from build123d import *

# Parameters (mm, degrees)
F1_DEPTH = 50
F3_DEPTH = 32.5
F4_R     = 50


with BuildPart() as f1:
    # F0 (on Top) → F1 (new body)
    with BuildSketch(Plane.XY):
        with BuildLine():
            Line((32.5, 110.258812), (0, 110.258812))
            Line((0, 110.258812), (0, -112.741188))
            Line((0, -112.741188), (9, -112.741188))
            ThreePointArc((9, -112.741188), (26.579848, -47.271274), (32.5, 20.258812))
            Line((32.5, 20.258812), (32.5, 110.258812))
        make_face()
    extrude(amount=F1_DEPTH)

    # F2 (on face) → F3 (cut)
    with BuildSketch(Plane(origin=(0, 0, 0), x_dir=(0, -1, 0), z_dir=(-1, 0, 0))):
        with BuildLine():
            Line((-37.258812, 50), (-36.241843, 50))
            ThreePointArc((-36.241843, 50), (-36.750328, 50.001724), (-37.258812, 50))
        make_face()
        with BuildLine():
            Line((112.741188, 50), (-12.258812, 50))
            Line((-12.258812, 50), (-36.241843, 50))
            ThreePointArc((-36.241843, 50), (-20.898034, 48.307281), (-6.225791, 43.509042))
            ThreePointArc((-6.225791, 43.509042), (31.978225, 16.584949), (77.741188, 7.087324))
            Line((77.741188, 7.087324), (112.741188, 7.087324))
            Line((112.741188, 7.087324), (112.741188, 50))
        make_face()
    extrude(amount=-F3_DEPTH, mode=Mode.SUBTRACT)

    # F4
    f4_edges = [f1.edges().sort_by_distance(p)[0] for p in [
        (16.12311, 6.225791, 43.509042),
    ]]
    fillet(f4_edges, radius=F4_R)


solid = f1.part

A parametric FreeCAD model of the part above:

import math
import FreeCAD as App
import Part
import Sketcher

V = App.Vector
Q = App.Units.Quantity


def edges_at(feature, points):
    """Names of the edges that pass closest to the given points."""
    edges = feature.Shape.Edges
    near = lambda p: min(range(len(edges)), key=lambda i: edges[i].distToShape(Part.Vertex(*p))[0])
    return sorted({f"Edge{near(p) + 1}" for p in points})

doc = App.newDocument("Part")
params = doc.addObject("Spreadsheet::Sheet", "Params")
for row, (alias, value) in enumerate([
    ("sketch1_width", "9 mm"),
    ("sketch1_height", "223 mm"),
    ("sketch1_height2", "90 mm"),
    ("sketch1_width2", "32.5 mm"),
    ("pad1_length", "50 mm"),
    ("sketch2_width", "35 mm"),
    ("pocket1_length", "32.5 mm"),
    ("fillet_radius", "50 mm"),
], start=1):
    params.set(f"A{row}", alias)
    params.set(f"B{row}", "=" + value)
    params.setAlias(f"B{row}", alias)

body = doc.addObject("PartDesign::Body", "Body")

sketch1 = body.newObject("Sketcher::SketchObject", "Sketch")
sketch1.AttachmentSupport = (doc.getObject("XY_Plane"), [""])
sketch1.MapMode = "FlatFace"
sketch1.addGeometry([
    Part.LineSegment(V(32, 110, 0), V(0, 110, 0)),
    Part.LineSegment(V(0, 110, 0), V(0, -113, 0)),
    Part.LineSegment(V(0, -113, 0), V(9, -113, 0)),
    Part.ArcOfCircle(Part.Circle(V(-356, 20, 0), V(0, 0, 1), 388), math.radians(-20), math.radians(0)),
    Part.LineSegment(V(32, 20, 0), V(32, 110, 0)),
], False)
sketch1.addConstraint([
    Sketcher.Constraint("Coincident", 0, 2, 1, 1),
    Sketcher.Constraint("Coincident", 1, 2, 2, 1),
    Sketcher.Constraint("Coincident", 2, 2, 3, 1),
    Sketcher.Constraint("Tangent", 3, 2, 4, 1),
    Sketcher.Constraint("Coincident", 4, 2, 0, 1),
    Sketcher.Constraint("Horizontal", 0),
    Sketcher.Constraint("Vertical", 1),
    Sketcher.Constraint("Horizontal", 2),
    Sketcher.Constraint("Vertical", 4),
    Sketcher.Constraint("PointOnObject", 0, 2, -2),
    Sketcher.Constraint("DistanceX", 2, 1, 2, 2, Q("9 mm")),
    Sketcher.Constraint("DistanceY", 1, 2, 1, 1, Q("223 mm")),
    Sketcher.Constraint("DistanceY", 4, 1, 4, 2, Q("90 mm")),
    Sketcher.Constraint("DistanceX", 0, 2, 0, 1, Q("32.5 mm")),
    Sketcher.Constraint("DistanceY", -1, 1, 3, 3, Q("20.258809 mm")),
])
sketch1.setExpression("Constraints[10]", "Params.sketch1_width")
sketch1.setExpression("Constraints[11]", "Params.sketch1_height")
sketch1.setExpression("Constraints[12]", "Params.sketch1_height2")
sketch1.setExpression("Constraints[13]", "Params.sketch1_width2")
pad1 = body.newObject("PartDesign::Pad", "Pad")
pad1.Profile = sketch1
pad1.setExpression("Length", "Params.pad1_length")

sketch2 = body.newObject("Sketcher::SketchObject", "Sketch001")
sketch2.AttachmentSupport = (doc.getObject("YZ_Plane"), [""])
sketch2.MapMode = "FlatFace"
sketch2.addGeometry([
    Part.LineSegment(V(37.3, 50, 0), V(36.2, 50, 0)),
    Part.ArcOfCircle(Part.Circle(V(36.8, -25, 0), V(0, 0, 1), 75), math.radians(89.61), math.radians(90.39)),
    Part.LineSegment(V(-112.7, 50, 0), V(36.2, 50, 0)),
    Part.ArcOfCircle(Part.Circle(V(36.8, -25, 0), V(0, 0, 1), 75), math.radians(90), math.radians(114)),
    Part.ArcOfCircle(Part.Circle(V(-77.7, 122.1, 0), V(0, 0, 1), 115), math.radians(-90), math.radians(-43)),
    Part.LineSegment(V(-77.7, 7.1, 0), V(-112.7, 7.1, 0)),
    Part.LineSegment(V(-112.7, 7.1, 0), V(-112.7, 50, 0)),
], False)
sketch2.addConstraint([
    Sketcher.Constraint("Coincident", 0, 1, 1, 1),
    Sketcher.Constraint("Coincident", 1, 2, 0, 2),
    Sketcher.Constraint("Coincident", 2, 2, 3, 1),
    Sketcher.Constraint("Coincident", 3, 2, 4, 2),
    Sketcher.Constraint("Tangent", 4, 1, 5, 1),
    Sketcher.Constraint("Coincident", 5, 2, 6, 1),
    Sketcher.Constraint("Coincident", 6, 2, 2, 1),
    Sketcher.Constraint("Horizontal", 0),
    Sketcher.Constraint("Horizontal", 2),
    Sketcher.Constraint("Horizontal", 5),
    Sketcher.Constraint("Vertical", 6),
    Sketcher.Constraint("Coincident", 2, 2, 1, 2),
    Sketcher.Constraint("DistanceX", 5, 2, 5, 1, Q("35 mm")),
    Sketcher.Constraint("DistanceY", -1, 1, 0, 1, Q("50 mm")),
    Sketcher.Constraint("DistanceX", 4, 3, 0, 1, Q("115.000002 mm")),
    Sketcher.Constraint("Radius", 1, Q("74.988242 mm")),
    Sketcher.Constraint("Radius", 3, Q("75.000017 mm")),
    Sketcher.Constraint("Radius", 4, Q("115.000003 mm")),
    Sketcher.Constraint("DistanceX", 0, 2, 0, 1, Q("1.016969 mm")),
    Sketcher.Constraint("DistanceY", 6, 1, 6, 2, Q("42.912676 mm")),
    Sketcher.Constraint("DistanceX", -1, 1, 3, 3, Q("36.750332 mm")),
    Sketcher.Constraint("DistanceX", 4, 3, -1, 1, Q("77.74119 mm")),
])
sketch2.setExpression("Constraints[12]", "Params.sketch2_width")
pocket1 = body.newObject("PartDesign::Pocket", "Pocket")
pocket1.Profile = sketch2
pocket1.setExpression("Length", "Params.pocket1_length")
pocket1.Reversed = True
doc.recompute()

fillet = body.newObject("PartDesign::Fillet", "Fillet")
fillet.Base = (pocket1, edges_at(pocket1, [(16.123, 6.226, 43.509)]))
fillet.setExpression("Radius", "Params.fillet_radius")

doc.recompute()
